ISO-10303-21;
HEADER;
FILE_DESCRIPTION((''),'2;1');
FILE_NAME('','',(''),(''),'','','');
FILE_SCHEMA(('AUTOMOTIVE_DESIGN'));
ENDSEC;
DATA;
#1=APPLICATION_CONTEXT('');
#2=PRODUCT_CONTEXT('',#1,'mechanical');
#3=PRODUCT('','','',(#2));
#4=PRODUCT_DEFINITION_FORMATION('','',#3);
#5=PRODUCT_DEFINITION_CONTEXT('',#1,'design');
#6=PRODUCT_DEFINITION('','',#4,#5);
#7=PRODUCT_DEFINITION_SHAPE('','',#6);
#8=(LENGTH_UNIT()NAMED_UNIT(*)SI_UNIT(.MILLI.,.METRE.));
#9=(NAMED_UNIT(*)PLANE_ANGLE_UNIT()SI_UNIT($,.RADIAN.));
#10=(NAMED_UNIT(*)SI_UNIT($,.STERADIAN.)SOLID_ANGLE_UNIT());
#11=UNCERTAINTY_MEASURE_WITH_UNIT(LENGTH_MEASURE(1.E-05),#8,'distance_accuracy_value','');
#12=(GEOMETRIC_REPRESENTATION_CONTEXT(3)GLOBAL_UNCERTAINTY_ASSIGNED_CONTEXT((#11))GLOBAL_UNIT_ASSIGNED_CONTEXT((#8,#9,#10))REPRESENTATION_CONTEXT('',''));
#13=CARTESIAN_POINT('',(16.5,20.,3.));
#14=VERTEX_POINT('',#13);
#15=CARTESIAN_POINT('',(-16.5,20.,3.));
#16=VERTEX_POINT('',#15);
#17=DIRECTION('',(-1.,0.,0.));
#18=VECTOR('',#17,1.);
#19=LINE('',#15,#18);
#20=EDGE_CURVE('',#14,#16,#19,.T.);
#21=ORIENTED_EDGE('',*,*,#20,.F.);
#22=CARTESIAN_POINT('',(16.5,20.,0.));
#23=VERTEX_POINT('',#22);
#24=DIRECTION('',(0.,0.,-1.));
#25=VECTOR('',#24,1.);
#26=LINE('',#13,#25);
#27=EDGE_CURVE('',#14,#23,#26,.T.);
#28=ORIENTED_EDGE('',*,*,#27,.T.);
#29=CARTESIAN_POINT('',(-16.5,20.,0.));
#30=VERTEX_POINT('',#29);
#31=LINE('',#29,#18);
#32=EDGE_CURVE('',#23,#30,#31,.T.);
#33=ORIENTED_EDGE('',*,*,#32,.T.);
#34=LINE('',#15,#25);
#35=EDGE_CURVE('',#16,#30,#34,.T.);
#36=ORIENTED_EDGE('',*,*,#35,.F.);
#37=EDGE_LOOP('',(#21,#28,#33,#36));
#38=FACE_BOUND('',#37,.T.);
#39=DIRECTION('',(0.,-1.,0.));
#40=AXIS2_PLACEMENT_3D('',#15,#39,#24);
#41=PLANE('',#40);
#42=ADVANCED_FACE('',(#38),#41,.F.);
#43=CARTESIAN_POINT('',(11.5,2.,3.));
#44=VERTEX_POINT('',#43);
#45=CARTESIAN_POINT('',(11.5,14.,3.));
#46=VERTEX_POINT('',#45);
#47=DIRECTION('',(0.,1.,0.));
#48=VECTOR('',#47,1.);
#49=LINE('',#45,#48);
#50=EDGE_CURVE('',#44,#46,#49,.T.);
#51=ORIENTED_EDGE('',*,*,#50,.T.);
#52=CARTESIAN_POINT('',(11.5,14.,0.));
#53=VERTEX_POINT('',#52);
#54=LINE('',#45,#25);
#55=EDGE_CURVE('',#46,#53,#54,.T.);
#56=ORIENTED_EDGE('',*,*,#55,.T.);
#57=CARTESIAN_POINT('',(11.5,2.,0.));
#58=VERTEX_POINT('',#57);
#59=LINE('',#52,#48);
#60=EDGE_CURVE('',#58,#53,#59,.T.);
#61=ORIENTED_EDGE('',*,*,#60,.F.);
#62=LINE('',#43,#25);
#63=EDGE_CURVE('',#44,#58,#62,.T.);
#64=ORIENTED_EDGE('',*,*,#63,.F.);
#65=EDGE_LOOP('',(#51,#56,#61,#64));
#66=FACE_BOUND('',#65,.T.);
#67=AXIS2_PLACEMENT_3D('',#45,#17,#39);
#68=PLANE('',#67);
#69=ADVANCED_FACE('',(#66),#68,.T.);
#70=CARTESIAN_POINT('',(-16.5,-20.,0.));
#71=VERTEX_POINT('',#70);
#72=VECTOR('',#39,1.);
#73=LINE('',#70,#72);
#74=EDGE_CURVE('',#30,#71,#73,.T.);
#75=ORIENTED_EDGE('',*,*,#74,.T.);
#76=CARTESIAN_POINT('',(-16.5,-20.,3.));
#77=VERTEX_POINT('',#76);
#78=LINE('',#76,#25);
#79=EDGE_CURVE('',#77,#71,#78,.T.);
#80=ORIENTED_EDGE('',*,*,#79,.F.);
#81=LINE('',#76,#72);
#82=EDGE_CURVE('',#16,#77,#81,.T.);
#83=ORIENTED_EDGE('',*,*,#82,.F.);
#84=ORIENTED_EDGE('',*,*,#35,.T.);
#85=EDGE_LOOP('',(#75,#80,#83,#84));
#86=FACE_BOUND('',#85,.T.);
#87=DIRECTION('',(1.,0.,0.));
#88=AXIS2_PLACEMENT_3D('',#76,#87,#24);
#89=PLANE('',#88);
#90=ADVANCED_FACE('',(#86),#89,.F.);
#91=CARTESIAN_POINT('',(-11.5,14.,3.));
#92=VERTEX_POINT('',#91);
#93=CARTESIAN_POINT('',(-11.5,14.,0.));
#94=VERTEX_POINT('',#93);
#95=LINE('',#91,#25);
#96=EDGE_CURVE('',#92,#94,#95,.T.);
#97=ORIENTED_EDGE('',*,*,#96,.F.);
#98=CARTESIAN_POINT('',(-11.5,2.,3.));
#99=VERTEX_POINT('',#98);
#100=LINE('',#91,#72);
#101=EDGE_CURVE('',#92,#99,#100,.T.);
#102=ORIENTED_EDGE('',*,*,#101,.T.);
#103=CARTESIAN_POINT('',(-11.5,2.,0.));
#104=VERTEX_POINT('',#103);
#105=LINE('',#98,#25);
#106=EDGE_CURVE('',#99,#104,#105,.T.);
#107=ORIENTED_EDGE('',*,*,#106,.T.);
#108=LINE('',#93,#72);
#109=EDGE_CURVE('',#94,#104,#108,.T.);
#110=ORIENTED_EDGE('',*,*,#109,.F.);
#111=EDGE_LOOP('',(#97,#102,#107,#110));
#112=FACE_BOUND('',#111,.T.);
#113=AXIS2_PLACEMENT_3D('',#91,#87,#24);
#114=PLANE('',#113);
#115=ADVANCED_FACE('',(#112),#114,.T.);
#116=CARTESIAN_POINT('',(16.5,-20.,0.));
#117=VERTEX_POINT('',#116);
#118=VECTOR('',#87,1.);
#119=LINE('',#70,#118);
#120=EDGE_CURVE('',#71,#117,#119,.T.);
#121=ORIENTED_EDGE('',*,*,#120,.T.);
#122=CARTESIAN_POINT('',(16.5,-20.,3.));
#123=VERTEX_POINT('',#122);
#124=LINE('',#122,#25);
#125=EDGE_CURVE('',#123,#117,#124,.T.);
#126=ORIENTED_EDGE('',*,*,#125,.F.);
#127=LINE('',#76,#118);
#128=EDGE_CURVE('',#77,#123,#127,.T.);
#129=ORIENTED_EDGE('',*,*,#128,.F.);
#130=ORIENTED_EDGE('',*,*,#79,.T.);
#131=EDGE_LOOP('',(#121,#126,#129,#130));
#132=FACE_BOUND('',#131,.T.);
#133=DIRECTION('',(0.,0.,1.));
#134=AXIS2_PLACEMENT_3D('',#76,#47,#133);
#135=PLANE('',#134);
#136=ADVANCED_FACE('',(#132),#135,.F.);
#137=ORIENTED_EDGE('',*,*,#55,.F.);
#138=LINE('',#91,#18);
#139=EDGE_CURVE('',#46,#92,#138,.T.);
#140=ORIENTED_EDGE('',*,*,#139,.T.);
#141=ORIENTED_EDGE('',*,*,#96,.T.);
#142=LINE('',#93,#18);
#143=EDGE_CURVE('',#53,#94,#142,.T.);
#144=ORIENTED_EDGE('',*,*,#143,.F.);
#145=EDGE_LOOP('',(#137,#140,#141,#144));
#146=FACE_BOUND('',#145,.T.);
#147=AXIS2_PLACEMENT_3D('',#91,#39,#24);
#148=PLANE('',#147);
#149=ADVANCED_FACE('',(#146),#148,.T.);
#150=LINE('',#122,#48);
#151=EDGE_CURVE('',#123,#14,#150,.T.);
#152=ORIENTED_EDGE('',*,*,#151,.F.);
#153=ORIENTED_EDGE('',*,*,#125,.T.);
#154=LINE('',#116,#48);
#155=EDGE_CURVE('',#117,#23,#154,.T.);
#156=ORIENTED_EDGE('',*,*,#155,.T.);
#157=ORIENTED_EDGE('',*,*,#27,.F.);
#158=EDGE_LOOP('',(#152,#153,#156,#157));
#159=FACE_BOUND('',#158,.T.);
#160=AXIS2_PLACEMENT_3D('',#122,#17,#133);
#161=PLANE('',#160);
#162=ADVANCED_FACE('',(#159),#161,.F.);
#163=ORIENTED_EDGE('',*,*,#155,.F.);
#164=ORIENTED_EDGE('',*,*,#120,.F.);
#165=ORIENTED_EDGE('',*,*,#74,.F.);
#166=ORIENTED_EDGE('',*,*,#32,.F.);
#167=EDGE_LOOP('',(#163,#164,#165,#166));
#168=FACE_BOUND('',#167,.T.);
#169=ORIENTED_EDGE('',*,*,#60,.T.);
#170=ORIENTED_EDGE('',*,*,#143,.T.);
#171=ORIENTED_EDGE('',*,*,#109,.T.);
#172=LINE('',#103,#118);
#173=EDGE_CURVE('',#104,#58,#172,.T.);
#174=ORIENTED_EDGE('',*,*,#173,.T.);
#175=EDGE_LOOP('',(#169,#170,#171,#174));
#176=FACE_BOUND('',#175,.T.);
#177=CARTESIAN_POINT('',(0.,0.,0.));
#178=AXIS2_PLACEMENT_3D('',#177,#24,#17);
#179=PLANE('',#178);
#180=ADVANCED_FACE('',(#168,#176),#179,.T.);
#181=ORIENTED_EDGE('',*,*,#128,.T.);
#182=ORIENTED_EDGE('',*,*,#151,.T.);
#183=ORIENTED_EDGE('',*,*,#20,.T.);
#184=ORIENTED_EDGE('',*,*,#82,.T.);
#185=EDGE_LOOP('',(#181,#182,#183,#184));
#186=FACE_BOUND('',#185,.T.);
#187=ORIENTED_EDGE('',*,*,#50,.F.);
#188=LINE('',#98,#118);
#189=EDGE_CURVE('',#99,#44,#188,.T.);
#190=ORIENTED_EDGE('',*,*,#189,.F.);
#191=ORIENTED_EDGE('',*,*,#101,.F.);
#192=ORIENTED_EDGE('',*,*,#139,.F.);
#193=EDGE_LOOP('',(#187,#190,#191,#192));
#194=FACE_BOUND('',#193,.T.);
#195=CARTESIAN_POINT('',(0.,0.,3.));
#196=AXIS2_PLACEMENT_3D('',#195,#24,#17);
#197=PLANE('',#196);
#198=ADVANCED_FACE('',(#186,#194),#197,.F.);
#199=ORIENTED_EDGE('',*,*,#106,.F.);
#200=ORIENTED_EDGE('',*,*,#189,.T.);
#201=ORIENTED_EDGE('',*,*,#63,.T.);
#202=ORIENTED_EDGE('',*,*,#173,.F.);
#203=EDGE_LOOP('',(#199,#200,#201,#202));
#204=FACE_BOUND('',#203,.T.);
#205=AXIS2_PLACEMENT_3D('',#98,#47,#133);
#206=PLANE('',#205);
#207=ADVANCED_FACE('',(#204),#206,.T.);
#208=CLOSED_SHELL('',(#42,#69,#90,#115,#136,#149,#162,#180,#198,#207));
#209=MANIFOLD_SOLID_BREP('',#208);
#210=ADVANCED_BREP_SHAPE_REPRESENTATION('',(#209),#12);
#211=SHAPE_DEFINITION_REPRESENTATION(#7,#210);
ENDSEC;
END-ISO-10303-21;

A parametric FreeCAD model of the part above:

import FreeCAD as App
import Part
import Sketcher
Q = App.Units.Quantity

doc = App.newDocument("Part")
body = doc.addObject("PartDesign::Body", "Body")

# Sketch on XY plane
sketch1 = doc.addObject("Sketcher::SketchObject", "Sketch")
body.addObject(sketch1)
sketch1.AttachmentSupport = (doc.XY_Plane, [""])
sketch1.MapMode = "FlatFace"
sketch1.addGeometry([
    Part.LineSegment(App.Vector(-16, 20, 0), App.Vector(-16, -20, 0)),  # 0
    Part.LineSegment(App.Vector(-16, -20, 0), App.Vector(16, -20, 0)),  # 1
    Part.LineSegment(App.Vector(16, -20, 0), App.Vector(16, 20, 0)),  # 2
    Part.LineSegment(App.Vector(16, 20, 0), App.Vector(-16, 20, 0)),  # 3
    Part.LineSegment(App.Vector(12, 2, 0), App.Vector(-12, 2, 0)),  # 4
    Part.LineSegment(App.Vector(-12, 2, 0), App.Vector(-12, 14, 0)),  # 5
    Part.LineSegment(App.Vector(-12, 14, 0), App.Vector(12, 14, 0)),  # 6
    Part.LineSegment(App.Vector(12, 14, 0), App.Vector(12, 2, 0)),  # 7
], False)
sketch1.addConstraint([
    Sketcher.Constraint("Coincident", 0, 2, 1, 1),
    Sketcher.Constraint("Coincident", 1, 2, 2, 1),
    Sketcher.Constraint("Coincident", 2, 2, 3, 1),
    Sketcher.Constraint("Coincident", 3, 2, 0, 1),
    Sketcher.Constraint("Coincident", 4, 2, 5, 1),
    Sketcher.Constraint("Coincident", 5, 2, 6, 1),
    Sketcher.Constraint("Coincident", 6, 2, 7, 1),
    Sketcher.Constraint("Coincident", 7, 2, 4, 1),
    Sketcher.Constraint("Vertical", 0),
    Sketcher.Constraint("Horizontal", 1),
    Sketcher.Constraint("Vertical", 2),
    Sketcher.Constraint("Horizontal", 3),
    Sketcher.Constraint("Horizontal", 4),
    Sketcher.Constraint("Vertical", 5),
    Sketcher.Constraint("Horizontal", 6),
    Sketcher.Constraint("Vertical", 7),
    Sketcher.Constraint("Symmetric", 0, 2, 2, 2, -1, 1),
    Sketcher.Constraint("DistanceX", 1, 1, 1, 2, Q("33 mm")),
    Sketcher.Constraint("DistanceX", 4, 2, 4, 1, Q("23 mm")),
    Sketcher.Constraint("DistanceY", 0, 2, 0, 1, Q("40 mm")),
    Sketcher.Constraint("DistanceY", 5, 1, 5, 2, Q("12 mm")),
    Sketcher.Constraint("DistanceY", -1, 1, 4, 2, Q("2 mm")),
    Sketcher.Constraint("DistanceX", 3, 2, 4, 2, Q("5 mm")),
])
pad1 = doc.addObject("PartDesign::Pad", "Pad")
body.addObject(pad1)
pad1.Profile = sketch1
pad1.Length = 3

doc.recompute()
